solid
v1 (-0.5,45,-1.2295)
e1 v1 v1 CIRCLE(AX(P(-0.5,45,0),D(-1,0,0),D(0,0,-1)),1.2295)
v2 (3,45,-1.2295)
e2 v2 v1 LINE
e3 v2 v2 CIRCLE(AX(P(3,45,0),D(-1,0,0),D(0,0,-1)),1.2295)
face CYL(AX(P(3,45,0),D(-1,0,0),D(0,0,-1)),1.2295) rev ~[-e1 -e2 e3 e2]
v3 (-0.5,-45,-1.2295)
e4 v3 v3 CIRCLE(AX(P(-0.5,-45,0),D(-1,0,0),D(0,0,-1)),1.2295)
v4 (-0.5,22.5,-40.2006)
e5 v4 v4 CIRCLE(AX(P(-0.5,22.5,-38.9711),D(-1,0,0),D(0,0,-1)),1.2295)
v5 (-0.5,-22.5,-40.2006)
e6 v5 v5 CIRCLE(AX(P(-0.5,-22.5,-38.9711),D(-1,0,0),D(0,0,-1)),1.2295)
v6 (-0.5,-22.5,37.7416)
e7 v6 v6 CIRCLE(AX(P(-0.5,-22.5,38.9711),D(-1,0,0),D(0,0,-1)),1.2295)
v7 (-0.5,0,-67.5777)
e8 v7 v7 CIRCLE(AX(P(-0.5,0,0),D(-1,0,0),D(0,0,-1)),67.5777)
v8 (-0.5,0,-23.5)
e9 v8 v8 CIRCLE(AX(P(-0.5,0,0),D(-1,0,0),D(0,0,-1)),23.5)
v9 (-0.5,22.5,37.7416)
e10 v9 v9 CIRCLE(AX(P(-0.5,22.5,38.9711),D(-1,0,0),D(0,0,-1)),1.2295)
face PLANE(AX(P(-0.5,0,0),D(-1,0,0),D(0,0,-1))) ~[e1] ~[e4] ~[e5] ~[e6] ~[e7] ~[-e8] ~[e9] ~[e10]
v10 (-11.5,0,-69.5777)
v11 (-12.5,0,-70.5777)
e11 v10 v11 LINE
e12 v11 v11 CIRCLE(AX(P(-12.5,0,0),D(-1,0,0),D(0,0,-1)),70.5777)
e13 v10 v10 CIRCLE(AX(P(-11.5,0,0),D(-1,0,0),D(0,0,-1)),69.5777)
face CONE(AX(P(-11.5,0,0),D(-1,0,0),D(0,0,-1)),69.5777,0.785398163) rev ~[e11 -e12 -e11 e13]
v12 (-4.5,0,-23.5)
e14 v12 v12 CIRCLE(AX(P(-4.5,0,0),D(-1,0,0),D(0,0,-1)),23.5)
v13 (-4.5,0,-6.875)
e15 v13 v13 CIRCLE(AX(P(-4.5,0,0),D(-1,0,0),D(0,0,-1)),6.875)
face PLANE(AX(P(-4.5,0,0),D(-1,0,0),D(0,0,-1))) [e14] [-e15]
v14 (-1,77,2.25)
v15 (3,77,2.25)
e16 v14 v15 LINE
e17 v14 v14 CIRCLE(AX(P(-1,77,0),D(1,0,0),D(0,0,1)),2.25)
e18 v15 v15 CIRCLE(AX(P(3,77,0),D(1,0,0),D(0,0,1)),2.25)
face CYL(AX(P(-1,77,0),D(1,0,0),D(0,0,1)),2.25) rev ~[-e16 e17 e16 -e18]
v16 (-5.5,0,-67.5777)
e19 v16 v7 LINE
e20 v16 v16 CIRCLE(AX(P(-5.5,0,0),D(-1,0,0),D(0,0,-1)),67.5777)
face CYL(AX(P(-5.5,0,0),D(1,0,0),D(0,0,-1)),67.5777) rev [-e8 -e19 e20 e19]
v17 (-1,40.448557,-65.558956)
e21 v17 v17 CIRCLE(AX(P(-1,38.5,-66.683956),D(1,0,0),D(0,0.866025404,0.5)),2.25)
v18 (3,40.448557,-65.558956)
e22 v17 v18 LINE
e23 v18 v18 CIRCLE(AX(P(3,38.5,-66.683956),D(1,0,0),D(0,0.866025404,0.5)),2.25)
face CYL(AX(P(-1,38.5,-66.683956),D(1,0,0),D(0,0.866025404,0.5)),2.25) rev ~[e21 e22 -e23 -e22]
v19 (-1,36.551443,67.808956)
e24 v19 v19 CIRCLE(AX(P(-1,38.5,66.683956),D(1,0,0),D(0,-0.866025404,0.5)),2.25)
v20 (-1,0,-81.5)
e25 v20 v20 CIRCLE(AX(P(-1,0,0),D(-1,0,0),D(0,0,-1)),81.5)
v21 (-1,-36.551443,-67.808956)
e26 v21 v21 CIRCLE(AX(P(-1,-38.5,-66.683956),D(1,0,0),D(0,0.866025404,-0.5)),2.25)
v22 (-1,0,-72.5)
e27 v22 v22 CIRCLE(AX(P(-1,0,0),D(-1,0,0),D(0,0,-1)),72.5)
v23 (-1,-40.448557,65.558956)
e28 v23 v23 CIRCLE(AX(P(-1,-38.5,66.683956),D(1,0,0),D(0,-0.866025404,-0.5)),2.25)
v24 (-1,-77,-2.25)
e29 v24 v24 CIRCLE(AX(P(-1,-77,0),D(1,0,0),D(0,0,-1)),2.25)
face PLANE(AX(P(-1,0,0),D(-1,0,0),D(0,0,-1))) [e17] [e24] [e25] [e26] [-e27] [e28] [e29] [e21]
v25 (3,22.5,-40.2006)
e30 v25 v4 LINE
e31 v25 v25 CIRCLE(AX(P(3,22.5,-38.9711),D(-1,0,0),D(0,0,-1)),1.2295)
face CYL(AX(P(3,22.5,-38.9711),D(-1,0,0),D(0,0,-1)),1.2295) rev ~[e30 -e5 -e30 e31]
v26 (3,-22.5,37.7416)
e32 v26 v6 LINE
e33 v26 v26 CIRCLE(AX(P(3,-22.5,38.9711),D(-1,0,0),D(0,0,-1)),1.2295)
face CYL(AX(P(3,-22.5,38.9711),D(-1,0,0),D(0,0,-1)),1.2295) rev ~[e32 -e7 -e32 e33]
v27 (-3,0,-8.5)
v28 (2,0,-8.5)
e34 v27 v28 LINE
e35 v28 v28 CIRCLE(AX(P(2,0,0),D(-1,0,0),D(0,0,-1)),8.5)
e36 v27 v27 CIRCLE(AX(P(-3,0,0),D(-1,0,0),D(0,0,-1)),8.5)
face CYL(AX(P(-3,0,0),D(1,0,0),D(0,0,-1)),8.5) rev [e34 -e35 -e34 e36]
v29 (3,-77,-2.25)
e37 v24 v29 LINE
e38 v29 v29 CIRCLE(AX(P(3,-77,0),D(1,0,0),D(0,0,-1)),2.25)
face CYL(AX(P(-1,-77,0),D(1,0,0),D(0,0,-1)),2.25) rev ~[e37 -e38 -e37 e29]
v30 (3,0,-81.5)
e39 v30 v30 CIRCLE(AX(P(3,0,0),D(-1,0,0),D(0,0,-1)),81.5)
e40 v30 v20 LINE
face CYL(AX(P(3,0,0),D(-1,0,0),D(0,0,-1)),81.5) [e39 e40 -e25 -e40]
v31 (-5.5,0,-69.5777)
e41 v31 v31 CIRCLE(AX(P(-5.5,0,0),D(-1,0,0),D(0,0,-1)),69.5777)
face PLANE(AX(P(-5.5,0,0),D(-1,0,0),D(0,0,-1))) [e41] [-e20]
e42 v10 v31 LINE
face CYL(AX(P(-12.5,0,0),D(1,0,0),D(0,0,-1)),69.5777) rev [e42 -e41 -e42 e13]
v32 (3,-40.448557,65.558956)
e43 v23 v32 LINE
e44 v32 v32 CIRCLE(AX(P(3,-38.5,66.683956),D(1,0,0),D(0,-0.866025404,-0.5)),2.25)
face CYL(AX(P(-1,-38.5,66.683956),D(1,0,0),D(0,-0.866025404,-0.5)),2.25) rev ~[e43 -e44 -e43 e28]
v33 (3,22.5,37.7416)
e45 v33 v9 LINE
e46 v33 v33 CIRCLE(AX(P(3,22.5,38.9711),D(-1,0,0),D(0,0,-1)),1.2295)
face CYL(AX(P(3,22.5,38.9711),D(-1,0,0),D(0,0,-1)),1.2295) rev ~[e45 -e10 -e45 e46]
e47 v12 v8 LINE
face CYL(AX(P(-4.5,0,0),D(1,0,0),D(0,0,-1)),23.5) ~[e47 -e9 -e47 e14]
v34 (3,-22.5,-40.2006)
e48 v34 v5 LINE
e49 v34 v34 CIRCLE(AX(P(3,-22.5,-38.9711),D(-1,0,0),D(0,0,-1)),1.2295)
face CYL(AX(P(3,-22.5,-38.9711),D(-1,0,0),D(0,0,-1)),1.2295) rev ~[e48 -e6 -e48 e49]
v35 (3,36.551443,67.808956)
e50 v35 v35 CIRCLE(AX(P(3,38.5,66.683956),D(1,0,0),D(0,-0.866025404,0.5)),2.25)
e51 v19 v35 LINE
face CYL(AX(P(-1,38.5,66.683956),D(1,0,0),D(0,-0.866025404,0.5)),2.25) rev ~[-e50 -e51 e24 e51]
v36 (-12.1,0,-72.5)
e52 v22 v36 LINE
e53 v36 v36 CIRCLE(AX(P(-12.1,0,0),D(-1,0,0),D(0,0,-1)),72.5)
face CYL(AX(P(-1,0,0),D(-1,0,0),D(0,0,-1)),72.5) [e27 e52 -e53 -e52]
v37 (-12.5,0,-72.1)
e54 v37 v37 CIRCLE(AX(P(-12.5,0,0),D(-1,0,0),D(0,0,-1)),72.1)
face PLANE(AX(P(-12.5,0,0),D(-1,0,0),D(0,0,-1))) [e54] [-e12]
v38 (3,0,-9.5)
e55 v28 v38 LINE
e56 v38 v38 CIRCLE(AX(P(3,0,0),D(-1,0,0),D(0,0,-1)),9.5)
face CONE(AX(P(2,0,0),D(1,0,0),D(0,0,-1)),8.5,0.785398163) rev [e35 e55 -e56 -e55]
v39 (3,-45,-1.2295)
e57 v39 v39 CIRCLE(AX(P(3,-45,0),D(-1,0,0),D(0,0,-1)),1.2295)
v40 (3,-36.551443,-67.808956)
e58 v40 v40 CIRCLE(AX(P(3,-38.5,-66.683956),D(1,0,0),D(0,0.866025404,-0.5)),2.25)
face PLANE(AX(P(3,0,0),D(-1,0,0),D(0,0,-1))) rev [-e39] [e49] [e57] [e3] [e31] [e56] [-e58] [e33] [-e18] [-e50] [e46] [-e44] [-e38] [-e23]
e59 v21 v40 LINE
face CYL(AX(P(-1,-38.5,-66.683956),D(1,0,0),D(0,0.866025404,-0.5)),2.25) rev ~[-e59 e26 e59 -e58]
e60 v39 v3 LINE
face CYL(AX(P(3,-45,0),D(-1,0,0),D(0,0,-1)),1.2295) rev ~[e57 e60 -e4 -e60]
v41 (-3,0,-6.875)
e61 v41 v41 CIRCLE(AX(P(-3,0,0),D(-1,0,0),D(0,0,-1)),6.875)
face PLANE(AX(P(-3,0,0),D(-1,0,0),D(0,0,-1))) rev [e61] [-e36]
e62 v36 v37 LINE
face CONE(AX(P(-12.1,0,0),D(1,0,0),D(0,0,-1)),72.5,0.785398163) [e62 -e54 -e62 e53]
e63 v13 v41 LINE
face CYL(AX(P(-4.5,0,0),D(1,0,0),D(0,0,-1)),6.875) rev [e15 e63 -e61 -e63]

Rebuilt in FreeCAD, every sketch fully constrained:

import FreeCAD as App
import Part
import Sketcher
from FreeCAD import Vector
Q = App.Units.Quantity


def edges_at(feature, points):
    """Names of the edges that pass closest to the given points."""
    edges = feature.Shape.Edges
    near = lambda p: min(range(len(edges)), key=lambda i: edges[i].distToShape(Part.Vertex(*p))[0])
    return sorted({f"Edge{near(p) + 1}" for p in points})

doc = App.newDocument("Part")
body = doc.addObject("PartDesign::Body", "Body")

sketch1 = body.newObject("Sketcher::SketchObject", "Sketch")
sketch1.AttachmentSupport = (doc.getObject("XZ_Plane"), [""])
sketch1.MapMode = "FlatFace"
sketch1.addGeometry([
    Part.LineSegment(Vector(-3, -8.5, 0), Vector(3, -8.5, 0)),
    Part.LineSegment(Vector(3, -8.5, 0), Vector(3, -81.5, 0)),
    Part.LineSegment(Vector(3, -81.5, 0), Vector(-1, -81.5, 0)),
    Part.LineSegment(Vector(-1, -81.5, 0), Vector(-1, -72.5, 0)),
    Part.LineSegment(Vector(-1, -72.5, 0), Vector(-12.5, -72.5, 0)),
    Part.LineSegment(Vector(-12.5, -72.5, 0), Vector(-12.5, -69.5777, 0)),
    Part.LineSegment(Vector(-12.5, -69.5777, 0), Vector(-5.5, -69.5777, 0)),
    Part.LineSegment(Vector(-5.5, -69.5777, 0), Vector(-5.5, -67.5777, 0)),
    Part.LineSegment(Vector(-5.5, -67.5777, 0), Vector(-0.5, -67.5777, 0)),
    Part.LineSegment(Vector(-0.5, -67.5777, 0), Vector(-0.5, -23.5, 0)),
    Part.LineSegment(Vector(-0.5, -23.5, 0), Vector(-4.5, -23.5, 0)),
    Part.LineSegment(Vector(-4.5, -23.5, 0), Vector(-4.5, -6.875, 0)),
    Part.LineSegment(Vector(-4.5, -6.875, 0), Vector(-3, -6.875, 0)),
    Part.LineSegment(Vector(-3, -6.875, 0), Vector(-3, -8.5, 0)),
], False)
sketch1.addConstraint([
    Sketcher.Constraint("Coincident", 0, 2, 1, 1),
    Sketcher.Constraint("Coincident", 1, 2, 2, 1),
    Sketcher.Constraint("Coincident", 2, 2, 3, 1),
    Sketcher.Constraint("Coincident", 3, 2, 4, 1),
    Sketcher.Constraint("Coincident", 4, 2, 5, 1),
    Sketcher.Constraint("Coincident", 5, 2, 6, 1),
    Sketcher.Constraint("Coincident", 6, 2, 7, 1),
    Sketcher.Constraint("Coincident", 7, 2, 8, 1),
    Sketcher.Constraint("Coincident", 8, 2, 9, 1),
    Sketcher.Constraint("Coincident", 9, 2, 10, 1),
    Sketcher.Constraint("Coincident", 10, 2, 11, 1),
    Sketcher.Constraint("Coincident", 11, 2, 12, 1),
    Sketcher.Constraint("Coincident", 12, 2, 13, 1),
    Sketcher.Constraint("Coincident", 13, 2, 0, 1),
    Sketcher.Constraint("Horizontal", 0),
    Sketcher.Constraint("Vertical", 1),
    Sketcher.Constraint("Horizontal", 2),
    Sketcher.Constraint("Vertical", 3),
    Sketcher.Constraint("Horizontal", 4),
    Sketcher.Constraint("Vertical", 5),
    Sketcher.Constraint("Horizontal", 6),
    Sketcher.Constraint("Vertical", 7),
    Sketcher.Constraint("Horizontal", 8),
    Sketcher.Constraint("Vertical", 9),
    Sketcher.Constraint("Horizontal", 10),
    Sketcher.Constraint("Vertical", 11),
    Sketcher.Constraint("Horizontal", 12),
    Sketcher.Constraint("Vertical", 13),
    Sketcher.Constraint("Equal", 2, 10),
    Sketcher.Constraint("DistanceX", 0, 1, 0, 2, Q("6 mm")),
    Sketcher.Constraint("DistanceX", 2, 2, 2, 1, Q("4 mm")),
    Sketcher.Constraint("DistanceX", 6, 1, 6, 2, Q("7 mm")),
    Sketcher.Constraint("DistanceY", 3, 1, 3, 2, Q("9 mm")),
    Sketcher.Constraint("DistanceY", 7, 1, 7, 2, Q("2 mm")),
    Sketcher.Constraint("DistanceX", 12, 1, 12, 2, Q("1.5 mm")),
    Sketcher.Constraint("DistanceX", 2, 2, -1, 1, Q("1 mm")),
    Sketcher.Constraint("DistanceY", 3, 2, 0, 2, Q("64 mm")),
    Sketcher.Constraint("DistanceY", 9, 2, 0, 2, Q("15 mm")),
    Sketcher.Constraint("DistanceX", 7, 2, 10, 2, Q("1 mm")),
    Sketcher.Constraint("DistanceY", 0, 2, -1, 1, Q("8.5 mm")),
    Sketcher.Constraint("DistanceY", 13, 2, 13, 1, Q("1.625 mm")),
    Sketcher.Constraint("DistanceY", 5, 2, -1, 1, Q("69.5777 mm")),
])
revolution = body.newObject("PartDesign::Revolution", "Revolution")
revolution.Profile = sketch1
revolution.ReferenceAxis = (sketch1, ["H_Axis"])
revolution.Angle = 360
doc.recompute()

chamfer = body.newObject("PartDesign::Chamfer", "Chamfer")
chamfer.Base = (revolution, edges_at(revolution, [(3, 0, 8.5), (-12.5, 0, 69.578)]))
chamfer.Size = 1

sketch2 = body.newObject("Sketcher::SketchObject", "Sketch001")
sketch2.AttachmentSupport = (doc.getObject("YZ_Plane"), [""])
sketch2.MapMode = "FlatFace"
sketch2.AttachmentOffset = App.Placement(Vector(0, 0, -1), App.Rotation())
sketch2.addGeometry(Part.Circle(Vector(77, 0, 0), Vector(0, 0, 1), 2.25), False)
sketch2.addConstraint([
    Sketcher.Constraint("PointOnObject", 0, 3, -1),
    Sketcher.Constraint("Diameter", 0, Q("4.5 mm")),
    Sketcher.Constraint("DistanceX", -1, 1, 0, 3, Q("77 mm")),
])
doc.recompute()
hole = body.newObject("PartDesign::Hole", "Hole")
hole.Profile = sketch2
hole.ThreadType = "None"
hole.Diameter = 4.5
hole.DepthType = "ThroughAll"
hole.Reversed = True
doc.recompute()

polarpattern = body.newObject("PartDesign::PolarPattern", "PolarPattern")
polarpattern.Originals = [hole]
polarpattern.Axis = (doc.getObject("X_Axis"), [""])
polarpattern.Angle = 360
polarpattern.Occurrences = 6
body.Tip = polarpattern
doc.recompute()

chamfer2 = body.newObject("PartDesign::Chamfer", "Chamfer001")
chamfer2.Base = (polarpattern, edges_at(polarpattern, [(-12.5, 0, 72.5)]))
chamfer2.Size = 0.4

sketch3 = body.newObject("Sketcher::SketchObject", "Sketch002")
sketch3.AttachmentSupport = (doc.getObject("YZ_Plane"), [""])
sketch3.MapMode = "FlatFace"
sketch3.AttachmentOffset = App.Placement(Vector(0, 0, 3), App.Rotation())
sketch3.addGeometry([
    Part.Circle(Vector(45, 0, 0), Vector(0, 0, 1), 1.2295),
    Part.Circle(Vector(22.5, 38.9711, 0), Vector(0, 0, 1), 1.2295),
    Part.Circle(Vector(-22.5, 38.9711, 0), Vector(0, 0, 1), 1.2295),
    Part.Circle(Vector(-45, 0, 0), Vector(0, 0, 1), 1.2295),
    Part.Circle(Vector(-22.5, -38.9711, 0), Vector(0, 0, 1), 1.2295),
    Part.Circle(Vector(22.5, -38.9711, 0), Vector(0, 0, 1), 1.2295),
], False)
sketch3.addConstraint([
    Sketcher.Constraint("Equal", 0, 1),
    Sketcher.Constraint("Equal", 1, 2),
    Sketcher.Constraint("Equal", 2, 3),
    Sketcher.Constraint("Equal", 3, 4),
    Sketcher.Constraint("Equal", 4, 5),
    Sketcher.Constraint("Symmetric", 0, 3, 3, 3, -1, 1),
    Sketcher.Constraint("Symmetric", 1, 3, 4, 3, -1, 1),
    Sketcher.Constraint("Symmetric", 2, 3, 5, 3, -1, 1),
    Sketcher.Constraint("Symmetric", 1, 3, 2, 3, -2),
    Sketcher.Constraint("PointOnObject", 0, 3, -1),
    Sketcher.Constraint("Diameter", 0, Q("2.459 mm")),
    Sketcher.Constraint("DistanceX", -1, 1, 0, 3, Q("45 mm")),
    Sketcher.Constraint("DistanceX", 2, 3, 1, 3, Q("45 mm")),
    Sketcher.Constraint("DistanceY", -1, 1, 1, 3, Q("38.971 mm")),
])
doc.recompute()
hole2 = body.newObject("PartDesign::Hole", "Hole001")
hole2.Profile = sketch3
hole2.ThreadType = "None"
hole2.Diameter = 2.459
hole2.DepthType = "Dimension"
hole2.Depth = 6.5
hole2.DrillPoint = "Angled"
hole2.DrillPointAngle = 118

doc.recompute()
